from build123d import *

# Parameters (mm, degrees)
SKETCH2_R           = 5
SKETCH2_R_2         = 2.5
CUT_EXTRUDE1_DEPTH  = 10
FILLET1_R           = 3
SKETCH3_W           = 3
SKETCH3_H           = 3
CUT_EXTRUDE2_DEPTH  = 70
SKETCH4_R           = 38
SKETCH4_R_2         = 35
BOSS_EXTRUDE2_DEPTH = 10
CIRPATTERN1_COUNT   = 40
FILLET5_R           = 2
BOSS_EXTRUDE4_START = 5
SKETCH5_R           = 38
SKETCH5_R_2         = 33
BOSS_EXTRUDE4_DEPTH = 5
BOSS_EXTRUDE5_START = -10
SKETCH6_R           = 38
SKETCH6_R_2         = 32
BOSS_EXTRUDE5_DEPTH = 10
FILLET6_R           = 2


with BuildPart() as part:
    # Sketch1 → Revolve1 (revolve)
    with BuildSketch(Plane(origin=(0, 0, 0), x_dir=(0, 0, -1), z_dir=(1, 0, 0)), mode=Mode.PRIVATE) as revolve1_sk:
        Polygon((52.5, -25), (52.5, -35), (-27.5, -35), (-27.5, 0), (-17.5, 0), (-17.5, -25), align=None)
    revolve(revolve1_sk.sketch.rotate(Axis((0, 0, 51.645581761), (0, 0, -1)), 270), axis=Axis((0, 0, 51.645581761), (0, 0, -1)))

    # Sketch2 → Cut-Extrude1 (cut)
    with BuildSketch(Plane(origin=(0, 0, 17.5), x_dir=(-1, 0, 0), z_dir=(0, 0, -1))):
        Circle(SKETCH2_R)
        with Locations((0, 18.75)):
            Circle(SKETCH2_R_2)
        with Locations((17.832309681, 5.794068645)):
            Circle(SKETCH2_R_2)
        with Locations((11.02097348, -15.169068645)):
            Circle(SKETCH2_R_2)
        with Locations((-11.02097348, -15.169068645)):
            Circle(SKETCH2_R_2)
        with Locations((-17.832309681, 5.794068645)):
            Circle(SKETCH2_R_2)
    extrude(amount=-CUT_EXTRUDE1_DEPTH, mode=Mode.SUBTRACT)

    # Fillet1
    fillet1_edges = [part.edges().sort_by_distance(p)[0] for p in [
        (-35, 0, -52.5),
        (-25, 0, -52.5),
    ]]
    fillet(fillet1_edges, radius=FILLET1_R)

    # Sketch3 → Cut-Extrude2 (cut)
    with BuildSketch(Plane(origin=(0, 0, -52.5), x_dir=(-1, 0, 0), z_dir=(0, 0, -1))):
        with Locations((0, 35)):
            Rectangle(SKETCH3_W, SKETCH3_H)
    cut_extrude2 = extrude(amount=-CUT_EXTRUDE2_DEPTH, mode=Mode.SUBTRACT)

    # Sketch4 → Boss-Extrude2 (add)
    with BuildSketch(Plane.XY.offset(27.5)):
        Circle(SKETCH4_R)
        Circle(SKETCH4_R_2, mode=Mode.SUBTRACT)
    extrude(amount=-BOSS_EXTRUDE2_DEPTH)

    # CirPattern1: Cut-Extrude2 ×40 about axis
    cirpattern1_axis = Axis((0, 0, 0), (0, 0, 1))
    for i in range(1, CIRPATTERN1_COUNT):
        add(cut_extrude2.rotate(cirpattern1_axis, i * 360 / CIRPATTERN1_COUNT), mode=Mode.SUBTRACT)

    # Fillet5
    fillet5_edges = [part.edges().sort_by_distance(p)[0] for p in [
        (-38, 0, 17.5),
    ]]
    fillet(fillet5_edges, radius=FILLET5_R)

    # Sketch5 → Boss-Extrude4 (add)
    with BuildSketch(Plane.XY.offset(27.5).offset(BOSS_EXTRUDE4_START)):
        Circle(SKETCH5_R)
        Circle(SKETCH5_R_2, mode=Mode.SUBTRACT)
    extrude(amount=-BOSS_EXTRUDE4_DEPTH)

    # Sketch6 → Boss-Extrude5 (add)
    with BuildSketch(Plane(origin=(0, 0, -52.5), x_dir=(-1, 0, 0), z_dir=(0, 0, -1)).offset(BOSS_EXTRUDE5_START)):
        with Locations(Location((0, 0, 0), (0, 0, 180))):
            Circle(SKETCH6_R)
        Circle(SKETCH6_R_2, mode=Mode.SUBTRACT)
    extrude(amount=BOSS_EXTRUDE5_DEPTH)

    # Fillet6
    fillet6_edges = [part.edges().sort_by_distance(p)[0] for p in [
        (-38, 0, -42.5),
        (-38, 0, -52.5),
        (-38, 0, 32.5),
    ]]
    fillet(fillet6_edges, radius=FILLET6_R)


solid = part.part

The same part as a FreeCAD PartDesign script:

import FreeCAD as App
import Part
import Sketcher

V = App.Vector


def edges_at(feature, points):
    """Names of the edges that pass closest to the given points."""
    edges = feature.Shape.Edges
    near = lambda p: min(range(len(edges)), key=lambda i: edges[i].distToShape(Part.Vertex(*p))[0])
    return sorted({f"Edge{near(p) + 1}" for p in points})


def add_polygon(sketch, points):
    """Adds a closed chain of lines whose ends are joined by coincident constraints."""
    first, n = sketch.GeometryCount, len(points)
    for a, b in zip(points, points[1:] + points[:1]):
        sketch.addGeometry(Part.LineSegment(App.Vector(*a, 0), App.Vector(*b, 0)), False)
    for i in range(n):
        sketch.addConstraint(Sketcher.Constraint("Coincident", first + i, 2, first + (i + 1) % n, 1))

doc = App.newDocument("Part")
body = doc.addObject("PartDesign::Body", "Body")

# Sketch on YZ plane
sketch1 = doc.addObject("Sketcher::SketchObject", "Sketch")
body.addObject(sketch1)
sketch1.AttachmentSupport = (doc.YZ_Plane, [""])
sketch1.MapMode = "FlatFace"
add_polygon(sketch1, [(-35, -52), (-25, -52), (-25, 18), (0, 18), (0, 28), (-35, 28)])  # lines 0-5
sketch1.addConstraint([
    Sketcher.Constraint("Horizontal", 0),
    Sketcher.Constraint("Vertical", 1),
    Sketcher.Constraint("Horizontal", 2),
    Sketcher.Constraint("Vertical", 3),
    Sketcher.Constraint("Horizontal", 4),
    Sketcher.Constraint("Vertical", 5),
    Sketcher.Constraint("PointOnObject", 2, 2, -2),
    Sketcher.Constraint("Equal", 0, 3),
    Sketcher.Constraint("DistanceX", 0, 1, 0, 2, 10.0),
    Sketcher.Constraint("DistanceX", 2, 1, 2, 2, 25.0),
    Sketcher.Constraint("DistanceY", 1, 1, 1, 2, 70.0),
    Sketcher.Constraint("DistanceY", 0, 2, -1, 1, 52.5),
])
revolution = doc.addObject("PartDesign::Revolution", "Revolution")
body.addObject(revolution)
revolution.Profile = sketch1
revolution.ReferenceAxis = (sketch1, ["V_Axis"])
revolution.Angle = 360

# Sketch on XY plane
sketch2 = doc.addObject("Sketcher::SketchObject", "Sketch001")
body.addObject(sketch2)
sketch2.AttachmentSupport = (doc.XY_Plane, [""])
sketch2.MapMode = "FlatFace"
sketch2.AttachmentOffset = App.Placement(V(0, 0, 17.5), App.Rotation())
sketch2.addGeometry([
    Part.Circle(V(0, 0, 0), V(0, 0, 1), 5),  # 0
    Part.Circle(V(0, 18.8, 0), V(0, 0, 1), 2.5),  # 1
    Part.Circle(V(-17.8, 5.8, 0), V(0, 0, 1), 2.5),  # 2
    Part.Circle(V(-11, -15.2, 0), V(0, 0, 1), 2.5),  # 3
    Part.Circle(V(11, -15.2, 0), V(0, 0, 1), 2.5),  # 4
    Part.Circle(V(17.8, 5.8, 0), V(0, 0, 1), 2.5),  # 5
], False)
sketch2.addConstraint([
    Sketcher.Constraint("Coincident", 0, 3, -1, 1),
    Sketcher.Constraint("Equal", 1, 2),
    Sketcher.Constraint("Equal", 2, 3),
    Sketcher.Constraint("Equal", 3, 4),
    Sketcher.Constraint("Equal", 4, 5),
    Sketcher.Constraint("Symmetric", 3, 3, 4, 3, -2),
    Sketcher.Constraint("Symmetric", 2, 3, 5, 3, -2),
    Sketcher.Constraint("PointOnObject", 1, 3, -2),
    Sketcher.Constraint("Diameter", 0, 10.0),
    Sketcher.Constraint("Diameter", 1, 5.0),
    Sketcher.Constraint("DistanceY", -1, 1, 1, 3, 18.75),
    Sketcher.Constraint("DistanceX", 2, 3, -1, 1, 17.83231),
    Sketcher.Constraint("DistanceY", -1, 1, 2, 3, 5.794069),
    Sketcher.Constraint("DistanceY", 3, 3, -1, 1, 15.169069),
    Sketcher.Constraint("DistanceX", 3, 3, -1, 1, 11.020973),
])
pocket1 = doc.addObject("PartDesign::Pocket", "Pocket")
body.addObject(pocket1)
pocket1.Profile = sketch2
pocket1.Length = 10
pocket1.Reversed = True
doc.recompute()

fillet = doc.addObject("PartDesign::Fillet", "Fillet")
body.addObject(fillet)
fillet.Base = (pocket1, edges_at(pocket1, [(-35, 0, -52.5), (-25, 0, -52.5)]))
fillet.Radius = 3

# Sketch on XY plane
sketch3 = doc.addObject("Sketcher::SketchObject", "Sketch002")
body.addObject(sketch3)
sketch3.AttachmentSupport = (doc.XY_Plane, [""])
sketch3.MapMode = "FlatFace"
sketch3.AttachmentOffset = App.Placement(V(0, 0, -52.5), App.Rotation())
add_polygon(sketch3, [(1.5, 36.5), (1.5, 33.5), (-1.5, 33.5), (-1.5, 36.5)])  # lines 0-3
sketch3.addConstraint([
    Sketcher.Constraint("Vertical", 0),
    Sketcher.Constraint("Horizontal", 1),
    Sketcher.Constraint("Vertical", 2),
    Sketcher.Constraint("Horizontal", 3),
    Sketcher.Constraint("Equal", 3, 0),
    Sketcher.Constraint("DistanceX", 1, 2, 1, 1, 3.0),
    Sketcher.Constraint("DistanceX", -1, 1, 0, 2, 1.5),
    Sketcher.Constraint("DistanceY", -1, 1, 0, 2, 33.5),
])
pocket2 = doc.addObject("PartDesign::Pocket", "Pocket001")
body.addObject(pocket2)
pocket2.Profile = sketch3
pocket2.Length = 70
pocket2.Reversed = True

# Sketch on XY plane
sketch4 = doc.addObject("Sketcher::SketchObject", "Sketch003")
body.addObject(sketch4)
sketch4.AttachmentSupport = (doc.XY_Plane, [""])
sketch4.MapMode = "FlatFace"
sketch4.AttachmentOffset = App.Placement(V(0, 0, 27.5), App.Rotation())
sketch4.addGeometry([
    Part.Circle(V(0, 0, 0), V(0, 0, 1), 38),
    Part.Circle(V(0, 0, 0), V(0, 0, 1), 35),
], False)
sketch4.addConstraint([
    Sketcher.Constraint("Coincident", 0, 3, -1, 1),
    Sketcher.Constraint("Coincident", 1, 3, -1, 1),
    Sketcher.Constraint("Diameter", 0, 76.0),
    Sketcher.Constraint("Diameter", 1, 70.0),
])
pad1 = doc.addObject("PartDesign::Pad", "Pad")
body.addObject(pad1)
pad1.Profile = sketch4
pad1.Length = 10
pad1.Reversed = True
doc.recompute()

polarpattern = doc.addObject("PartDesign::PolarPattern", "PolarPattern")
body.addObject(polarpattern)
polarpattern.Originals = [pocket2]
polarpattern.Axis = (doc.Z_Axis, [""])
polarpattern.Angle = 360
polarpattern.Occurrences = 40
body.Tip = polarpattern
doc.recompute()

fillet2 = doc.addObject("PartDesign::Fillet", "Fillet001")
body.addObject(fillet2)
fillet2.Base = (polarpattern, edges_at(polarpattern, [(-38, 0, 17.5)]))
fillet2.Radius = 2

# Sketch on XY plane
sketch5 = doc.addObject("Sketcher::SketchObject", "Sketch004")
body.addObject(sketch5)
sketch5.AttachmentSupport = (doc.XY_Plane, [""])
sketch5.MapMode = "FlatFace"
sketch5.AttachmentOffset = App.Placement(V(0, 0, 32.5), App.Rotation())
sketch5.addGeometry([
    Part.Circle(V(0, 0, 0), V(0, 0, 1), 38),
    Part.Circle(V(0, 0, 0), V(0, 0, 1), 33),
], False)
sketch5.addConstraint([
    Sketcher.Constraint("Coincident", 0, 3, -1, 1),
    Sketcher.Constraint("Coincident", 1, 3, -1, 1),
    Sketcher.Constraint("Diameter", 0, 76.0),
    Sketcher.Constraint("Diameter", 1, 66.0),
])
pad2 = doc.addObject("PartDesign::Pad", "Pad001")
body.addObject(pad2)
pad2.Profile = sketch5
pad2.Length = 5
pad2.Reversed = True

# Sketch on XY plane
sketch6 = doc.addObject("Sketcher::SketchObject", "Sketch005")
body.addObject(sketch6)
sketch6.AttachmentSupport = (doc.XY_Plane, [""])
sketch6.MapMode = "FlatFace"
sketch6.AttachmentOffset = App.Placement(V(0, 0, -42.5), App.Rotation())
sketch6.addGeometry([
    Part.Circle(V(0, 0, 0), V(0, 0, 1), 38),
    Part.Circle(V(0, 0, 0), V(0, 0, 1), 32),
], False)
sketch6.addConstraint([
    Sketcher.Constraint("Coincident", 0, 3, -1, 1),
    Sketcher.Constraint("Coincident", 1, 3, -1, 1),
    Sketcher.Constraint("Diameter", 0, 76.0),
    Sketcher.Constraint("Diameter", 1, 64.0),
])
pad3 = doc.addObject("PartDesign::Pad", "Pad002")
body.addObject(pad3)
pad3.Profile = sketch6
pad3.Length = 10
pad3.Reversed = True
doc.recompute()

fillet3 = doc.addObject("PartDesign::Fillet", "Fillet002")
body.addObject(fillet3)
fillet3.Base = (pad3, edges_at(pad3, [(-38, 0, -42.5), (-38, 0, -52.5), (-38, 0, 32.5)]))
fillet3.Radius = 2

doc.recompute()
